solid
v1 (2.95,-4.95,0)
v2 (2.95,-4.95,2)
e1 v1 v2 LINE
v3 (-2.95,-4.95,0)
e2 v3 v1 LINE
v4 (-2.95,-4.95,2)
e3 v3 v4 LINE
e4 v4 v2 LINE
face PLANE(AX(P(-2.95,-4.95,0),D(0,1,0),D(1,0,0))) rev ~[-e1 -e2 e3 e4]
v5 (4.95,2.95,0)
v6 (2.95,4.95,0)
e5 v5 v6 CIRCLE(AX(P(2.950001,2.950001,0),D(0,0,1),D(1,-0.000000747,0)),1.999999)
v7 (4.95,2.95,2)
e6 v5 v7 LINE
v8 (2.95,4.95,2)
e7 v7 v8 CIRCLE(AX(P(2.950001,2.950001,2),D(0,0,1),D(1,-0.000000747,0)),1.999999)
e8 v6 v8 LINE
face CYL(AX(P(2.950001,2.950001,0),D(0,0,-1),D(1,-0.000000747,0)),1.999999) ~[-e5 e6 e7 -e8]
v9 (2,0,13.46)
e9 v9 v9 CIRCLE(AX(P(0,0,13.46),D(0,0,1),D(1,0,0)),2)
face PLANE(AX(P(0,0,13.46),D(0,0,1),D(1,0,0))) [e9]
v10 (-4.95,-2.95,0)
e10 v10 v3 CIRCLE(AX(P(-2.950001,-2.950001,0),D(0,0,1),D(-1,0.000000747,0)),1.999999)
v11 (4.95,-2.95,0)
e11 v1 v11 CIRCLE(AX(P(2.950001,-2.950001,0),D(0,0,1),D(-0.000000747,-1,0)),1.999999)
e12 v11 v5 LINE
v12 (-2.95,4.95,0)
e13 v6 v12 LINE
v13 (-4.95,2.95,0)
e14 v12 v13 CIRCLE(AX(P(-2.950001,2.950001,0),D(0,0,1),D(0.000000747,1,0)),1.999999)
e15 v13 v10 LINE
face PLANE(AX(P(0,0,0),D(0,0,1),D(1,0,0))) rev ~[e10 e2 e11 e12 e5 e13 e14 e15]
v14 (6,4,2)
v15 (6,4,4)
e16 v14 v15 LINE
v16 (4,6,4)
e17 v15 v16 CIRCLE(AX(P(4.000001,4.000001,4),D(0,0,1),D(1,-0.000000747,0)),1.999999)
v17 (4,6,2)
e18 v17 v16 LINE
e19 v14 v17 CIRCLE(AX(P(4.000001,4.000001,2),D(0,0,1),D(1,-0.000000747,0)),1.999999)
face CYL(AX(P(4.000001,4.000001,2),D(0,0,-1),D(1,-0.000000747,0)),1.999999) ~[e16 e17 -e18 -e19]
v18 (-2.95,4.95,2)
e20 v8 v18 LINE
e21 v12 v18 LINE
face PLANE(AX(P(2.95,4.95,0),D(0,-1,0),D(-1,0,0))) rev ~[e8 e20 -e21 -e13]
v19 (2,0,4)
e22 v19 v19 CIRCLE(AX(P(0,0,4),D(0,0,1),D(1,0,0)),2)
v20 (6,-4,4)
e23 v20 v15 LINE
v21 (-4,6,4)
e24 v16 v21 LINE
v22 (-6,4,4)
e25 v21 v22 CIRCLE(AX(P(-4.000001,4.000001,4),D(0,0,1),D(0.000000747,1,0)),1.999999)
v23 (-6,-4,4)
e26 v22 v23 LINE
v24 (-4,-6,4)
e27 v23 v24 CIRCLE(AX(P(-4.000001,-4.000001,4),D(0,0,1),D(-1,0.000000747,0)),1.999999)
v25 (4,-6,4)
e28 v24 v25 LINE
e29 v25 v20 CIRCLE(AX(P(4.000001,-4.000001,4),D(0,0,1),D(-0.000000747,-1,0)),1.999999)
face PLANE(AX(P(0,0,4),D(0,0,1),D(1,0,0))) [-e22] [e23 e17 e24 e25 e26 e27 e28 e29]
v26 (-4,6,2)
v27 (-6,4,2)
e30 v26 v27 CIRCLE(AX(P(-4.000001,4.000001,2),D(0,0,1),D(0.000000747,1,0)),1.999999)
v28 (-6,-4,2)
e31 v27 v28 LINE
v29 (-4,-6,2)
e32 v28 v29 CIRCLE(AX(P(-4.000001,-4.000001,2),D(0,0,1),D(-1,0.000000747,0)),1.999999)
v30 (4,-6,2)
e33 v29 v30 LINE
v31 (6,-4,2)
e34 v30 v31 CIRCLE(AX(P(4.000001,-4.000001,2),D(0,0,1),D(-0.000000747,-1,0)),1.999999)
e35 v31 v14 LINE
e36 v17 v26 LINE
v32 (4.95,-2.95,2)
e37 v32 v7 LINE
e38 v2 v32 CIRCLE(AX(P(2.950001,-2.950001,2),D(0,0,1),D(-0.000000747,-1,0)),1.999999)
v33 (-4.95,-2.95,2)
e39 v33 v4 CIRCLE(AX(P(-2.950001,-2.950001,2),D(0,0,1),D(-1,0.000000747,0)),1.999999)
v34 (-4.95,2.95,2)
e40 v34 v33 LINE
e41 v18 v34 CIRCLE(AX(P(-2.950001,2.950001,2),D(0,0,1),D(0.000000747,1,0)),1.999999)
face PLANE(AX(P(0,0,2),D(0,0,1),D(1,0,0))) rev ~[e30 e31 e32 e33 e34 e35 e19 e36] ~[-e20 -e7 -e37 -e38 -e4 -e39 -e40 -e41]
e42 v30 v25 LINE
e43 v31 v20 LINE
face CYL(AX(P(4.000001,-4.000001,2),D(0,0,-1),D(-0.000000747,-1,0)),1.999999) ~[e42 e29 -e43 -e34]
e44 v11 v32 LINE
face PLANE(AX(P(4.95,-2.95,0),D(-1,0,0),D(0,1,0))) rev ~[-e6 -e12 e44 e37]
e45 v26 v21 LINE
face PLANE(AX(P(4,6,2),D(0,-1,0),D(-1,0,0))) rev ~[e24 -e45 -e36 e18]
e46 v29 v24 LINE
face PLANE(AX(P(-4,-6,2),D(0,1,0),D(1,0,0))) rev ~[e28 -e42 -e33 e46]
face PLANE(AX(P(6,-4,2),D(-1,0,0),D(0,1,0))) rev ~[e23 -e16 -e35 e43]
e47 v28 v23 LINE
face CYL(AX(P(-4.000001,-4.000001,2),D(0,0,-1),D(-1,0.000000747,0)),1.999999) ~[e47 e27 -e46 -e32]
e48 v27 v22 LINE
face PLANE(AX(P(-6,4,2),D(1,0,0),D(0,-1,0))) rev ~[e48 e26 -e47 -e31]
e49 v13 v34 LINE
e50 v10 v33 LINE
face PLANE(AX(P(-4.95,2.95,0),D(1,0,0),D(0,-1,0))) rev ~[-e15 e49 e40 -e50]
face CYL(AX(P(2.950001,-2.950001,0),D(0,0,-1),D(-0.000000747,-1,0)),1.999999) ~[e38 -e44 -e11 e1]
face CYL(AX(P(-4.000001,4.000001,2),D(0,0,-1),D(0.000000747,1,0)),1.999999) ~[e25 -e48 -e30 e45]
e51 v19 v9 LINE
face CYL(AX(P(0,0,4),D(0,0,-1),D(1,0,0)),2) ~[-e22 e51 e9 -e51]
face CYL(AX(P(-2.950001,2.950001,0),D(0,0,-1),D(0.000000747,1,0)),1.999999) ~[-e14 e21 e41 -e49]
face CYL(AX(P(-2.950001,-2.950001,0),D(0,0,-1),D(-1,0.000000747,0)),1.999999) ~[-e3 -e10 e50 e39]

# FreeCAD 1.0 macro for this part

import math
import FreeCAD as App
import Part
import Sketcher
from FreeCAD import Vector

doc = App.newDocument("Part")
params = doc.addObject("Spreadsheet::Sheet", "Params")
for row, (alias, value) in enumerate([
    ("sketch1_radius", "1.999999 mm"),
    ("sketch1_width", "5.9 mm"),
    ("pad1_length", "2 mm"),
    ("sketch2_radius", "1.999999 mm"),
    ("sketch2_width", "8 mm"),
    ("pad2_length", "2 mm"),
    ("sketch3_diameter", "4 mm"),
    ("pad3_length", "9.46 mm"),
], start=1):
    params.set(f"A{row}", alias)
    params.set(f"B{row}", "=" + value)
    params.setAlias(f"B{row}", alias)

body = doc.addObject("PartDesign::Body", "Body")

sketch1 = body.newObject("Sketcher::SketchObject", "Sketch")
sketch1.AttachmentSupport = (doc.getObject("XY_Plane"), [""])
sketch1.MapMode = "FlatFace"
sketch1.addGeometry(Part.LineSegment(Vector(-2.95, -4.95, 0), Vector(2.95, -4.95, 0)), False)
sketch1.addGeometry(Part.ArcOfCircle(Part.Circle(Vector(2.950001, -2.950001, 0), Vector(0, 0, 1), 1.999999), math.radians(-90.000043), math.radians(0.000043)), False)
sketch1.addGeometry(Part.LineSegment(Vector(4.95, -2.95, 0), Vector(4.95, 2.95, 0)), False)
sketch1.addGeometry(Part.ArcOfCircle(Part.Circle(Vector(2.950001, 2.950001, 0), Vector(0, 0, 1), 1.999999), math.radians(-0.000043), math.radians(90.000043)), False)
sketch1.addGeometry(Part.LineSegment(Vector(2.95, 4.95, 0), Vector(-2.95, 4.95, 0)), False)
sketch1.addGeometry(Part.ArcOfCircle(Part.Circle(Vector(-2.950001, 2.950001, 0), Vector(0, 0, 1), 1.999999), math.radians(89.999957), math.radians(180.000043)), False)
sketch1.addGeometry(Part.LineSegment(Vector(-4.95, 2.95, 0), Vector(-4.95, -2.95, 0)), False)
sketch1.addGeometry(Part.ArcOfCircle(Part.Circle(Vector(-2.950001, -2.950001, 0), Vector(0, 0, 1), 1.999999), math.radians(179.999957), math.radians(270.000043)), False)
sketch1.addConstraint(Sketcher.Constraint("Tangent", 0, 2, 1, 1))
sketch1.addConstraint(Sketcher.Constraint("Tangent", 1, 2, 2, 1))
sketch1.addConstraint(Sketcher.Constraint("Tangent", 2, 2, 3, 1))
sketch1.addConstraint(Sketcher.Constraint("Tangent", 3, 2, 4, 1))
sketch1.addConstraint(Sketcher.Constraint("Tangent", 4, 2, 5, 1))
sketch1.addConstraint(Sketcher.Constraint("Tangent", 5, 2, 6, 1))
sketch1.addConstraint(Sketcher.Constraint("Tangent", 6, 2, 7, 1))
sketch1.addConstraint(Sketcher.Constraint("Tangent", 7, 2, 0, 1))
sketch1.addConstraint(Sketcher.Constraint("Horizontal", 0))
sketch1.addConstraint(Sketcher.Constraint("Vertical", 2))
sketch1.addConstraint(Sketcher.Constraint("Horizontal", 4))
sketch1.addConstraint(Sketcher.Constraint("Vertical", 6))
sketch1.addConstraint(Sketcher.Constraint("Equal", 1, 3))
sketch1.addConstraint(Sketcher.Constraint("Equal", 3, 5))
sketch1.addConstraint(Sketcher.Constraint("Equal", 5, 7))
sketch1.addConstraint(Sketcher.Constraint("Symmetric", 1, 3, 5, 3, -1, 1))
sketch1.addConstraint(Sketcher.Constraint("Equal", 4, 2))
sketch1.addConstraint(Sketcher.Constraint("Radius", 1, 1.999999))
sketch1.addConstraint(Sketcher.Constraint("DistanceX", 0, 1, 0, 2, 5.9))
sketch1.setExpression("Constraints[17]", "Params.sketch1_radius")
sketch1.setExpression("Constraints[18]", "Params.sketch1_width")
pad1 = body.newObject("PartDesign::Pad", "Pad")
pad1.Profile = sketch1
pad1.setExpression("Length", "Params.pad1_length")

sketch2 = body.newObject("Sketcher::SketchObject", "Sketch001")
sketch2.AttachmentSupport = (doc.getObject("XY_Plane"), [""])
sketch2.MapMode = "FlatFace"
sketch2.AttachmentOffset = App.Placement(Vector(0, 0, 2), App.Rotation())
sketch2.addGeometry(Part.LineSegment(Vector(-4, -6, 0), Vector(4, -6, 0)), False)
sketch2.addGeometry(Part.ArcOfCircle(Part.Circle(Vector(4.000001, -4.000001, 0), Vector(0, 0, 1), 1.999999), math.radians(-90.000043), math.radians(0.000043)), False)
sketch2.addGeometry(Part.LineSegment(Vector(6, -4, 0), Vector(6, 4, 0)), False)
sketch2.addGeometry(Part.ArcOfCircle(Part.Circle(Vector(4.000001, 4.000001, 0), Vector(0, 0, 1), 1.999999), math.radians(-0.000043), math.radians(90.000043)), False)
sketch2.addGeometry(Part.LineSegment(Vector(4, 6, 0), Vector(-4, 6, 0)), False)
sketch2.addGeometry(Part.ArcOfCircle(Part.Circle(Vector(-4.000001, 4.000001, 0), Vector(0, 0, 1), 1.999999), math.radians(89.999957), math.radians(180.000043)), False)
sketch2.addGeometry(Part.LineSegment(Vector(-6, 4, 0), Vector(-6, -4, 0)), False)
sketch2.addGeometry(Part.ArcOfCircle(Part.Circle(Vector(-4.000001, -4.000001, 0), Vector(0, 0, 1), 1.999999), math.radians(179.999957), math.radians(270.000043)), False)
sketch2.addConstraint(Sketcher.Constraint("Tangent", 0, 2, 1, 1))
sketch2.addConstraint(Sketcher.Constraint("Tangent", 1, 2, 2, 1))
sketch2.addConstraint(Sketcher.Constraint("Tangent", 2, 2, 3, 1))
sketch2.addConstraint(Sketcher.Constraint("Tangent", 3, 2, 4, 1))
sketch2.addConstraint(Sketcher.Constraint("Tangent", 4, 2, 5, 1))
sketch2.addConstraint(Sketcher.Constraint("Tangent", 5, 2, 6, 1))
sketch2.addConstraint(Sketcher.Constraint("Tangent", 6, 2, 7, 1))
sketch2.addConstraint(Sketcher.Constraint("Tangent", 7, 2, 0, 1))
sketch2.addConstraint(Sketcher.Constraint("Horizontal", 0))
sketch2.addConstraint(Sketcher.Constraint("Vertical", 2))
sketch2.addConstraint(Sketcher.Constraint("Horizontal", 4))
sketch2.addConstraint(Sketcher.Constraint("Vertical", 6))
sketch2.addConstraint(Sketcher.Constraint("Equal", 1, 3))
sketch2.addConstraint(Sketcher.Constraint("Equal", 3, 5))
sketch2.addConstraint(Sketcher.Constraint("Equal", 5, 7))
sketch2.addConstraint(Sketcher.Constraint("Symmetric", 1, 3, 5, 3, -1, 1))
sketch2.addConstraint(Sketcher.Constraint("Equal", 4, 2))
sketch2.addConstraint(Sketcher.Constraint("Radius", 1, 1.999999))
sketch2.addConstraint(Sketcher.Constraint("DistanceX", 0, 1, 0, 2, 8.0))
sketch2.setExpression("Constraints[17]", "Params.sketch2_radius")
sketch2.setExpression("Constraints[18]", "Params.sketch2_width")
pad2 = body.newObject("PartDesign::Pad", "Pad001")
pad2.Profile = sketch2
pad2.setExpression("Length", "Params.pad2_length")

sketch3 = body.newObject("Sketcher::SketchObject", "Sketch002")
sketch3.AttachmentSupport = (doc.getObject("XY_Plane"), [""])
sketch3.MapMode = "FlatFace"
sketch3.AttachmentOffset = App.Placement(Vector(0, 0, 4), App.Rotation())
sketch3.addGeometry(Part.Circle(Vector(0, 0, 0), Vector(0, 0, 1), 2), False)
sketch3.addConstraint(Sketcher.Constraint("Coincident", 0, 3, -1, 1))
sketch3.addConstraint(Sketcher.Constraint("Diameter", 0, 4.0))
sketch3.setExpression("Constraints[1]", "Params.sketch3_diameter")
pad3 = body.newObject("PartDesign::Pad", "Pad002")
pad3.Profile = sketch3
pad3.setExpression("Length", "Params.pad3_length")

doc.recompute()
